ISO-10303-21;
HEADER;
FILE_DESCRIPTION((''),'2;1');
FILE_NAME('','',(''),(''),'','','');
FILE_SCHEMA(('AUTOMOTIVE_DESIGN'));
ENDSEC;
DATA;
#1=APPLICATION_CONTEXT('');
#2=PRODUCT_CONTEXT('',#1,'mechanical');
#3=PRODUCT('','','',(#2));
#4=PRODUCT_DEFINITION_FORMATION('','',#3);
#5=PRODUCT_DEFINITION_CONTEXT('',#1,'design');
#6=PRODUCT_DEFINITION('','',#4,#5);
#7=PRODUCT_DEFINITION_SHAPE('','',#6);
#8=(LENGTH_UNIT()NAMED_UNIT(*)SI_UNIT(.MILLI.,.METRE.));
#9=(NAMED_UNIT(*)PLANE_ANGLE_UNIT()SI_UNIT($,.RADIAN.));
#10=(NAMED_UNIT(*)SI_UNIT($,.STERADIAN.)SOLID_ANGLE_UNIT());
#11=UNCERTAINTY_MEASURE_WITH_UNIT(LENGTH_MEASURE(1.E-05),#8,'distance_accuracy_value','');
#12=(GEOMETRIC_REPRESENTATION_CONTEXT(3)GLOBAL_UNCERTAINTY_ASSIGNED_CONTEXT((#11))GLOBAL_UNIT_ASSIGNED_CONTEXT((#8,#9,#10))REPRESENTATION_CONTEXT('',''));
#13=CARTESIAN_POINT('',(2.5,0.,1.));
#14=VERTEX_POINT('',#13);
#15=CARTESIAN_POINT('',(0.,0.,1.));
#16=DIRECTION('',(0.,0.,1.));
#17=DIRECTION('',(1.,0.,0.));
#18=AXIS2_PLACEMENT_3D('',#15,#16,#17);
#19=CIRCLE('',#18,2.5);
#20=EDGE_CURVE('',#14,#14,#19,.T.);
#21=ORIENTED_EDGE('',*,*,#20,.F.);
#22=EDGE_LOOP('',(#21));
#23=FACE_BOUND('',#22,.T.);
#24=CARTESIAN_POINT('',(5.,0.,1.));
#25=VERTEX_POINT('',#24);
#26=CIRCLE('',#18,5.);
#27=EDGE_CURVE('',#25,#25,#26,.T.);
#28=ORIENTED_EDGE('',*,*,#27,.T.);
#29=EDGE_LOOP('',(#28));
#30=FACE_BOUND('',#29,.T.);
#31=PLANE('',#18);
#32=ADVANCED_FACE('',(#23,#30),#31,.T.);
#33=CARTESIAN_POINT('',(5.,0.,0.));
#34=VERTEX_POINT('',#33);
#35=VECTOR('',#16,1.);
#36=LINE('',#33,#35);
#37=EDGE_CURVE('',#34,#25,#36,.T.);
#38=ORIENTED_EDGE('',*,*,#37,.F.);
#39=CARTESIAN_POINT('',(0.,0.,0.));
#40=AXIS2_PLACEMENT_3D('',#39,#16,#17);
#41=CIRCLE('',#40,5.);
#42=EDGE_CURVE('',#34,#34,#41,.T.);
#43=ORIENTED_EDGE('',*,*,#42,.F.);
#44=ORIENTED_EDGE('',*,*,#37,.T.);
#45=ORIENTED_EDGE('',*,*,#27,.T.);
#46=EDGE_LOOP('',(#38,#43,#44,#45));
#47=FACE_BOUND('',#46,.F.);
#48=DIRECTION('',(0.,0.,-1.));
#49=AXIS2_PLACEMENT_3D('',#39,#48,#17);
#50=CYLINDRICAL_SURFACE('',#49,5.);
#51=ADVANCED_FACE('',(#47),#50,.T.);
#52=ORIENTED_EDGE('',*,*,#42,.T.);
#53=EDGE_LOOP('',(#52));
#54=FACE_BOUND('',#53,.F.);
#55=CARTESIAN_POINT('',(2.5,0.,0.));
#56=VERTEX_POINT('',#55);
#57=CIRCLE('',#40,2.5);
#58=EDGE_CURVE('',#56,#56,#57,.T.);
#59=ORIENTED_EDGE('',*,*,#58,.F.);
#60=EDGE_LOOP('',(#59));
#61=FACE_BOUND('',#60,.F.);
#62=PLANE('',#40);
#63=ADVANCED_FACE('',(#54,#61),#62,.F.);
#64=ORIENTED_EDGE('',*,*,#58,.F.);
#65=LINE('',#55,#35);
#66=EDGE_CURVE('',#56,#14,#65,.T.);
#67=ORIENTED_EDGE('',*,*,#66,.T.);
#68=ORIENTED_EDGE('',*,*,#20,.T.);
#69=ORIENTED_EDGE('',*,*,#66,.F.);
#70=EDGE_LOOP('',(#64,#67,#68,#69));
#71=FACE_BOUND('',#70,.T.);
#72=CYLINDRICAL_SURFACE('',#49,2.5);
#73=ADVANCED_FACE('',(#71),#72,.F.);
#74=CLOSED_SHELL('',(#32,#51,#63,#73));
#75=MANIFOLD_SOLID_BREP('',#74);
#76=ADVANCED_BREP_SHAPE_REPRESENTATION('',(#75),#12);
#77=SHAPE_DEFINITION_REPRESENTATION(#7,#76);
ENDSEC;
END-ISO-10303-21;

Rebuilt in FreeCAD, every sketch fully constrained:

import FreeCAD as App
import Part
import Sketcher
from FreeCAD import Vector
Q = App.Units.Quantity

doc = App.newDocument("Part")
body = doc.addObject("PartDesign::Body", "Body")

sketch1 = body.newObject("Sketcher::SketchObject", "Sketch")
sketch1.AttachmentSupport = (doc.getObject("XY_Plane"), [""])
sketch1.MapMode = "FlatFace"
sketch1.addGeometry([
    Part.Circle(Vector(0, 0, 0), Vector(0, 0, 1), 5),
    Part.Circle(Vector(0, 0, 0), Vector(0, 0, 1), 2.5),
], False)
sketch1.addConstraint([
    Sketcher.Constraint("Coincident", 0, 3, -1, 1),
    Sketcher.Constraint("Coincident", 1, 3, -1, 1),
    Sketcher.Constraint("Diameter", 0, Q("10 mm")),
    Sketcher.Constraint("Diameter", 1, Q("5 mm")),
])
pad1 = body.newObject("PartDesign::Pad", "Pad")
pad1.Profile = sketch1
pad1.Length = 1

doc.recompute()
